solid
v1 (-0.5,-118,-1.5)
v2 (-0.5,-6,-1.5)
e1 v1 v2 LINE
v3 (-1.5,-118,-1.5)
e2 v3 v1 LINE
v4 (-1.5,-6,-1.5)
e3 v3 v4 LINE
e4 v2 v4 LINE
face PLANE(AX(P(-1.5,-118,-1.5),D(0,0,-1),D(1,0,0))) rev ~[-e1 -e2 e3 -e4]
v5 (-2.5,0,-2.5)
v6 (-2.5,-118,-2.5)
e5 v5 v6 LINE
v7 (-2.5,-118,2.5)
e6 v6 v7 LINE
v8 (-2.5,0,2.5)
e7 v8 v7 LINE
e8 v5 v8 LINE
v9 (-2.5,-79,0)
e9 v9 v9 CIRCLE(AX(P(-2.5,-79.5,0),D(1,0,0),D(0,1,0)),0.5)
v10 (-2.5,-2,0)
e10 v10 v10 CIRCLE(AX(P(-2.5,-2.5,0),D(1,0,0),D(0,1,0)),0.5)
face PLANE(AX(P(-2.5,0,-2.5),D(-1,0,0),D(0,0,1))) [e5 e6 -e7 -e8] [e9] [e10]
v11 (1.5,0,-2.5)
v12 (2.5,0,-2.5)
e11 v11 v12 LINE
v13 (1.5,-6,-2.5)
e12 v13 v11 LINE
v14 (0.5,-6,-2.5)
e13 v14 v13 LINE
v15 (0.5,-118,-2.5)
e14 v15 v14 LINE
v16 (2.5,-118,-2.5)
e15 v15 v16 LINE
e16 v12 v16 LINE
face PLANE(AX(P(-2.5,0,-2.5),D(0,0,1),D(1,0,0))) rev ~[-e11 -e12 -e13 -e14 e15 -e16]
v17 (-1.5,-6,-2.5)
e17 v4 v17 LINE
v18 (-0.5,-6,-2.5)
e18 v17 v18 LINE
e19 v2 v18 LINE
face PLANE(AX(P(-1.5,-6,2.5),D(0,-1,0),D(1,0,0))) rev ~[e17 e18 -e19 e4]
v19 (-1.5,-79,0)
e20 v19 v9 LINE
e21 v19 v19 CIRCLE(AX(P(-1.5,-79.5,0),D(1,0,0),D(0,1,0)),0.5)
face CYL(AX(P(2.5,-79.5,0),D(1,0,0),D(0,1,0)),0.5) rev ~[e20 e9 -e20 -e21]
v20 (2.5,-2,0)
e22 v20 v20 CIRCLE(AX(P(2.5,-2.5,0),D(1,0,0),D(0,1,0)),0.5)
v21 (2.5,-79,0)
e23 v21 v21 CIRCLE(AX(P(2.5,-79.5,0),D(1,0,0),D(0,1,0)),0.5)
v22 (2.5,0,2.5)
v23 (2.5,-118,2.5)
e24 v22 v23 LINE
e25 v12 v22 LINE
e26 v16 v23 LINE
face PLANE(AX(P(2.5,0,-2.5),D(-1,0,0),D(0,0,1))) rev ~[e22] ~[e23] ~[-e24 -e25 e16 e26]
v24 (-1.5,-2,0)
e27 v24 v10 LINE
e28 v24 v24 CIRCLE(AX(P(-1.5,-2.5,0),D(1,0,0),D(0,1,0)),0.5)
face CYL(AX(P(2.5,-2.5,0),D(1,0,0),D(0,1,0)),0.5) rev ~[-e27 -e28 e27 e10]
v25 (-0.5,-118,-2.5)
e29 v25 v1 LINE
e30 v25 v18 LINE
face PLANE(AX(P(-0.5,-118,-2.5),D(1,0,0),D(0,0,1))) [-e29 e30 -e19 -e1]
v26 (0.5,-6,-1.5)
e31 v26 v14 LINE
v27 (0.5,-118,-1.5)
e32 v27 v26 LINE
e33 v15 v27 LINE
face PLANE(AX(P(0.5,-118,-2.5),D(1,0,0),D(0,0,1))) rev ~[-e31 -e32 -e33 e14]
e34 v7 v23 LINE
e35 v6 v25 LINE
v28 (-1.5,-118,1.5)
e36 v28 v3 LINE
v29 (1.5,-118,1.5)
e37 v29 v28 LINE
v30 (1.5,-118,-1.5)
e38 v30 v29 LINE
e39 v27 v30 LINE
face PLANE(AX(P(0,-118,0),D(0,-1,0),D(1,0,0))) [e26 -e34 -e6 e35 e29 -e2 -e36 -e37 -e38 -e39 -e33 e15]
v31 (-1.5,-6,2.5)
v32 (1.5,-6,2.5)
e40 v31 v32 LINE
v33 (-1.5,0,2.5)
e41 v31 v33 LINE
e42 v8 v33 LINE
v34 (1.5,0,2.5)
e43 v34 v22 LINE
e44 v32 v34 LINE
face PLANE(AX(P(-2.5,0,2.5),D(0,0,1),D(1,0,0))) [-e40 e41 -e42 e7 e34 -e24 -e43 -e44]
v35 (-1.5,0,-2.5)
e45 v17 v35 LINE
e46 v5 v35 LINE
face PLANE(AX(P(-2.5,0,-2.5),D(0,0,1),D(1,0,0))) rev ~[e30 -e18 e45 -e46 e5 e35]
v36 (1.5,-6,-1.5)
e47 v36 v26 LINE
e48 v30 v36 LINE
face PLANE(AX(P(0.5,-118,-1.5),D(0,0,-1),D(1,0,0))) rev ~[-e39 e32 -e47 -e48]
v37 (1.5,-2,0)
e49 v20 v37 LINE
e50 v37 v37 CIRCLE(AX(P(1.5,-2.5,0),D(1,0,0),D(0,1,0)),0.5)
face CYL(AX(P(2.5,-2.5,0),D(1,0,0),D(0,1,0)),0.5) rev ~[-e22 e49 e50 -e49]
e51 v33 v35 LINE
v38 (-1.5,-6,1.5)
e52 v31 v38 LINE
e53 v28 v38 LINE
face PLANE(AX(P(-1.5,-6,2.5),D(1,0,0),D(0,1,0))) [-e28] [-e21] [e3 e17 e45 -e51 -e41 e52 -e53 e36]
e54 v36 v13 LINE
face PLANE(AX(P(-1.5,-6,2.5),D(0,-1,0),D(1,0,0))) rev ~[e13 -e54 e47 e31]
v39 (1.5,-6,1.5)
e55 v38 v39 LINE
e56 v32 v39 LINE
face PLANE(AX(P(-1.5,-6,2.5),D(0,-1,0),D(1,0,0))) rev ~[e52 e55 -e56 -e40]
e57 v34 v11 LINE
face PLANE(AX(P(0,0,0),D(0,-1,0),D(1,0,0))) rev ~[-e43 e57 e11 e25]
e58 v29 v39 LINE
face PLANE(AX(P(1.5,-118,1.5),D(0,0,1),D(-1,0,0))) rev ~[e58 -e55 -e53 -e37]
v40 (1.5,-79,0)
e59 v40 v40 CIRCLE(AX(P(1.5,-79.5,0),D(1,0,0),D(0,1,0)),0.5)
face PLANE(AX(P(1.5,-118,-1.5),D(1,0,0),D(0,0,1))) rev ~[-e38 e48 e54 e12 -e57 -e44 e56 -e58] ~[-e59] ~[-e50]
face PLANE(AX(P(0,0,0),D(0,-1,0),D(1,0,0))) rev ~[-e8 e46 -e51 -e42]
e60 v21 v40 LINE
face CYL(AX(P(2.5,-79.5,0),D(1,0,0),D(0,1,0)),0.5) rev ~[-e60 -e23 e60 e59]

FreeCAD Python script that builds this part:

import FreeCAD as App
import Part
import Sketcher
from FreeCAD import Vector

doc = App.newDocument("Part")
body = doc.addObject("PartDesign::Body", "Body")

sketch1 = doc.addObject("Sketcher::SketchObject", "Sketch")
body.addObject(sketch1)
sketch1.AttachmentSupport = (doc.XZ_Plane, [""])
sketch1.MapMode = "FlatFace"
sketch1.addGeometry([
    Part.LineSegment(Vector(-2, 2, 0), Vector(-2, -2, 0)),
    Part.LineSegment(Vector(-2, -2, 0), Vector(2, -2, 0)),
    Part.LineSegment(Vector(2, -2, 0), Vector(2, 2, 0)),
    Part.LineSegment(Vector(2, 2, 0), Vector(-2, 2, 0)),
], False)
sketch1.addConstraint([
    Sketcher.Constraint("Coincident", 0, 2, 1, 1),
    Sketcher.Constraint("Coincident", 1, 2, 2, 1),
    Sketcher.Constraint("Coincident", 2, 2, 3, 1),
    Sketcher.Constraint("Coincident", 3, 2, 0, 1),
    Sketcher.Constraint("Vertical", 0),
    Sketcher.Constraint("Horizontal", 1),
    Sketcher.Constraint("Vertical", 2),
    Sketcher.Constraint("Horizontal", 3),
    Sketcher.Constraint("Symmetric", 0, 2, 2, 2, -1, 1),
    Sketcher.Constraint("Equal", 3, 0),
    Sketcher.Constraint("DistanceX", 1, 1, 1, 2, 5.0),
])
pad1 = doc.addObject("PartDesign::Pad", "Pad")
body.addObject(pad1)
pad1.Profile = sketch1
pad1.Length = 118

sketch2 = doc.addObject("Sketcher::SketchObject", "Sketch001")
body.addObject(sketch2)
sketch2.AttachmentSupport = (doc.XZ_Plane, [""])
sketch2.MapMode = "FlatFace"
sketch2.AttachmentOffset = App.Placement(Vector(0, 0, 118), App.Rotation())
sketch2.addGeometry([
    Part.LineSegment(Vector(1.5, -1.5, 0), Vector(1.5, 1.5, 0)),
    Part.LineSegment(Vector(1.5, 1.5, 0), Vector(-1.5, 1.5, 0)),
    Part.LineSegment(Vector(-1.5, 1.5, 0), Vector(-1.5, -1.5, 0)),
    Part.LineSegment(Vector(-1.5, -1.5, 0), Vector(-0.5, -1.5, 0)),
    Part.LineSegment(Vector(-0.5, -1.5, 0), Vector(-0.5, -2.5, 0)),
    Part.LineSegment(Vector(-0.5, -2.5, 0), Vector(0.5, -2.5, 0)),
    Part.LineSegment(Vector(0.5, -2.5, 0), Vector(0.5, -1.5, 0)),
    Part.LineSegment(Vector(0.5, -1.5, 0), Vector(1.5, -1.5, 0)),
], False)
sketch2.addConstraint([
    Sketcher.Constraint("Coincident", 0, 2, 1, 1),
    Sketcher.Constraint("Coincident", 1, 2, 2, 1),
    Sketcher.Constraint("Coincident", 2, 2, 3, 1),
    Sketcher.Constraint("Coincident", 3, 2, 4, 1),
    Sketcher.Constraint("Coincident", 4, 2, 5, 1),
    Sketcher.Constraint("Coincident", 5, 2, 6, 1),
    Sketcher.Constraint("Coincident", 6, 2, 7, 1),
    Sketcher.Constraint("Coincident", 7, 2, 0, 1),
    Sketcher.Constraint("Vertical", 0),
    Sketcher.Constraint("Horizontal", 1),
    Sketcher.Constraint("Vertical", 2),
    Sketcher.Constraint("Horizontal", 3),
    Sketcher.Constraint("Vertical", 4),
    Sketcher.Constraint("Horizontal", 5),
    Sketcher.Constraint("Vertical", 6),
    Sketcher.Constraint("Horizontal", 7),
    Sketcher.Constraint("Symmetric", 0, 2, 2, 2, -1, 1),
    Sketcher.Constraint("Symmetric", 3, 2, 6, 2, -2),
    Sketcher.Constraint("Equal", 3, 5),
    Sketcher.Constraint("Equal", 1, 0),
    Sketcher.Constraint("Equal", 7, 4),
    Sketcher.Constraint("DistanceX", 1, 2, 1, 1, 3.0),
])
pocket1 = doc.addObject("PartDesign::Pocket", "Pocket")
body.addObject(pocket1)
pocket1.Profile = sketch2
pocket1.Type = "ThroughAll"

sketch3 = doc.addObject("Sketcher::SketchObject", "Sketch002")
body.addObject(sketch3)
sketch3.AttachmentSupport = (doc.YZ_Plane, [""])
sketch3.MapMode = "FlatFace"
sketch3.AttachmentOffset = App.Placement(Vector(0, 0, 2.5), App.Rotation())
sketch3.addGeometry(Part.Circle(Vector(-79.5, 0, 0), Vector(0, 0, 1), 0.5), False)
sketch3.addConstraint([
    Sketcher.Constraint("PointOnObject", 0, 3, -1),
    Sketcher.Constraint("Diameter", 0, 1.0),
    Sketcher.Constraint("DistanceX", 0, 3, -1, 1, 79.5),
])
pocket2 = doc.addObject("PartDesign::Pocket", "Pocket001")
body.addObject(pocket2)
pocket2.Profile = sketch3
pocket2.Type = "ThroughAll"

sketch4 = doc.addObject("Sketcher::SketchObject", "Sketch003")
body.addObject(sketch4)
sketch4.AttachmentSupport = (doc.YZ_Plane, [""])
sketch4.MapMode = "FlatFace"
sketch4.AttachmentOffset = App.Placement(Vector(0, 0, 2.5), App.Rotation())
sketch4.addGeometry(Part.Circle(Vector(-2.5, 0, 0), Vector(0, 0, 1), 0.5), False)
sketch4.addConstraint([
    Sketcher.Constraint("PointOnObject", 0, 3, -1),
    Sketcher.Constraint("Diameter", 0, 1.0),
    Sketcher.Constraint("DistanceX", 0, 3, -1, 1, 2.5),
])
pocket3 = doc.addObject("PartDesign::Pocket", "Pocket002")
body.addObject(pocket3)
pocket3.Profile = sketch4
pocket3.Type = "ThroughAll"

sketch5 = doc.addObject("Sketcher::SketchObject", "Sketch004")
body.addObject(sketch5)
sketch5.AttachmentSupport = (doc.XY_Plane, [""])
sketch5.MapMode = "FlatFace"
sketch5.AttachmentOffset = App.Placement(Vector(0, 0, 2.5), App.Rotation())
sketch5.addGeometry([
    Part.LineSegment(Vector(-1.5, 0, 0), Vector(-1.5, -6, 0)),
    Part.LineSegment(Vector(-1.5, -6, 0), Vector(1.5, -6, 0)),
    Part.LineSegment(Vector(1.5, -6, 0), Vector(1.5, 0, 0)),
    Part.LineSegment(Vector(1.5, 0, 0), Vector(-1.5, 0, 0)),
], False)
sketch5.addConstraint([
    Sketcher.Constraint("Coincident", 0, 2, 1, 1),
    Sketcher.Constraint("Coincident", 1, 2, 2, 1),
    Sketcher.Constraint("Coincident", 2, 2, 3, 1),
    Sketcher.Constraint("Coincident", 3, 2, 0, 1),
    Sketcher.Constraint("Vertical", 0),
    Sketcher.Constraint("Horizontal", 1),
    Sketcher.Constraint("Vertical", 2),
    Sketcher.Constraint("Horizontal", 3),
    Sketcher.Constraint("Symmetric", 2, 2, 3, 2, -1, 1),
    Sketcher.Constraint("DistanceX", 1, 1, 1, 2, 3.0),
    Sketcher.Constraint("DistanceY", 0, 2, 0, 1, 6.0),
])
pocket4 = doc.addObject("PartDesign::Pocket", "Pocket003")
body.addObject(pocket4)
pocket4.Profile = sketch5
pocket4.Type = "ThroughAll"

doc.recompute()
